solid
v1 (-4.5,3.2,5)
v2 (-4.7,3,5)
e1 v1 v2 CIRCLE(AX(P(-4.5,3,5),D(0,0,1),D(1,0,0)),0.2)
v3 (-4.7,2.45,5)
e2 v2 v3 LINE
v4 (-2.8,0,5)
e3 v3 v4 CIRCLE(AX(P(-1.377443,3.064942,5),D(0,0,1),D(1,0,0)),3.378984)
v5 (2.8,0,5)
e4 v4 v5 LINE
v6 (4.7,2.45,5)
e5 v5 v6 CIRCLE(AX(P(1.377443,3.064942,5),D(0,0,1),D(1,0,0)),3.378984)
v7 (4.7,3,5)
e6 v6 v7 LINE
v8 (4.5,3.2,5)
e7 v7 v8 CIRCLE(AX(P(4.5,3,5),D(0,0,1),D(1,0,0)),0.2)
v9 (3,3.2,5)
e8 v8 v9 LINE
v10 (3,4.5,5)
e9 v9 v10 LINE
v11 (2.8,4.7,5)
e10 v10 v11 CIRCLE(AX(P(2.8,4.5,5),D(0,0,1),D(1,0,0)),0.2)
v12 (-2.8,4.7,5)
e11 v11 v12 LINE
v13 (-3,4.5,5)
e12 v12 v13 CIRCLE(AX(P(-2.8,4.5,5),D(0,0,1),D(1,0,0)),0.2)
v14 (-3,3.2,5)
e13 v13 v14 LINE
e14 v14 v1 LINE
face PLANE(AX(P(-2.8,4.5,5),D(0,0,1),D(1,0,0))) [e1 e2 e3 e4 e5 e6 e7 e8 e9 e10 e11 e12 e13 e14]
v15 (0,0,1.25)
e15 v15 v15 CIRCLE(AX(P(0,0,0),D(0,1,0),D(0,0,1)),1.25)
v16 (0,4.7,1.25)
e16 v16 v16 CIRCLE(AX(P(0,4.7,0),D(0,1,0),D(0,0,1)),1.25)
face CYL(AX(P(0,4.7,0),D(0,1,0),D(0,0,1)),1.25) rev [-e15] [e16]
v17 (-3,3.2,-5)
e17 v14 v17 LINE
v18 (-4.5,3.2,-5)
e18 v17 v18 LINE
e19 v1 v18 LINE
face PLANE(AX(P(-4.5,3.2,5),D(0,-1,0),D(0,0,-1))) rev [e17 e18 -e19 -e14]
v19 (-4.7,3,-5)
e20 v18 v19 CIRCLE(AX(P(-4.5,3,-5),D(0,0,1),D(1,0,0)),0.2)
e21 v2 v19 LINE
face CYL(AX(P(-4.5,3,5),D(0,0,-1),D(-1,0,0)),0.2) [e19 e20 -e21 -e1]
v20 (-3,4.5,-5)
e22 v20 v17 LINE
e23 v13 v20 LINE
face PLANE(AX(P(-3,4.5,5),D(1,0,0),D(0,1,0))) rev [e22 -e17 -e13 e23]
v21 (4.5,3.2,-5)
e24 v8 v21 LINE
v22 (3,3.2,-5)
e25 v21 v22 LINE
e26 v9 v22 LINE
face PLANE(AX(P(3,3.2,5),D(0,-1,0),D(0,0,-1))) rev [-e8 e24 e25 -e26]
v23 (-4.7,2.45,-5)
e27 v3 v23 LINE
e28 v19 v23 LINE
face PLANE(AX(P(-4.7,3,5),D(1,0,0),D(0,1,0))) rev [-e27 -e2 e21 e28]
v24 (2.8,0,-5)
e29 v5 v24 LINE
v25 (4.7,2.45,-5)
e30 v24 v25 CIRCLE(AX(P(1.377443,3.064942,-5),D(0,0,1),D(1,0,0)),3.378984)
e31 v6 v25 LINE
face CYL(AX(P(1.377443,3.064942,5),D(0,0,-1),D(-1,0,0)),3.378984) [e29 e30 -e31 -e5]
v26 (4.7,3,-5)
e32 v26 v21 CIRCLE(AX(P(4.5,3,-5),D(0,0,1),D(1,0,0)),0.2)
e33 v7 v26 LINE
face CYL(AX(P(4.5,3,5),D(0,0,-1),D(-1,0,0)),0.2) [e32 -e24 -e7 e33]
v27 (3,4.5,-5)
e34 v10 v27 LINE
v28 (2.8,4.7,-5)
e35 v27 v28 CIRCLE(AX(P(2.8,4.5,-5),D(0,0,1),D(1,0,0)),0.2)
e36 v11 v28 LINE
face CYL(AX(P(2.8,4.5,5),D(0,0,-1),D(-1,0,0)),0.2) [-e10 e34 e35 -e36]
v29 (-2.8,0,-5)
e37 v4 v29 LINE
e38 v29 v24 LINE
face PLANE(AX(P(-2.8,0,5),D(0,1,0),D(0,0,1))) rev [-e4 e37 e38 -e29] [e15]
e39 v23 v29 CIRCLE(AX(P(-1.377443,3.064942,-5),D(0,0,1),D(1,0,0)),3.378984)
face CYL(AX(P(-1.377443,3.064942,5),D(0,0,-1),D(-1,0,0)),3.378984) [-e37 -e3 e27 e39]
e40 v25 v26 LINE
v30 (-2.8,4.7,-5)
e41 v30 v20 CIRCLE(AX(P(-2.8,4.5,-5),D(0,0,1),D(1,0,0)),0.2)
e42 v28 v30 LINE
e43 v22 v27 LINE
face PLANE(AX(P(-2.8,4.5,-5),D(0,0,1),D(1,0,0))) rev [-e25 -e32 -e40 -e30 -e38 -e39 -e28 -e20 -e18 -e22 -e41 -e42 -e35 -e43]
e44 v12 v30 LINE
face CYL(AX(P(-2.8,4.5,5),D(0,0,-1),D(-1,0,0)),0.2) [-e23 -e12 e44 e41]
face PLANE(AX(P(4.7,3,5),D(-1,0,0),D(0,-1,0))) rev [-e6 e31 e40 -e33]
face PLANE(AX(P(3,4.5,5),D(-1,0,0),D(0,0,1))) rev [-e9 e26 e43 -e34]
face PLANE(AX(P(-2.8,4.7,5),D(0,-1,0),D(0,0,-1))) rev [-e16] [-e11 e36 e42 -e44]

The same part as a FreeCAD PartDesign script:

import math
import FreeCAD as App
import Part
import Sketcher

doc = App.newDocument("Part")
params = doc.addObject("Spreadsheet::Sheet", "Params")
for row, (alias, value) in enumerate([
    ("sketch1_radius", "0.2 mm"),
    ("sketch1_width", "5.6 mm"),
    ("sketch1_width2", "1.5 mm"),
    ("sketch1_height", "1.3 mm"),
    ("sketch1_height2", "0.55 mm"),
    ("pad1_length", "10 mm"),
    ("sketch2_diameter", "2.5 mm"),
    ("hole_diameter", "2.5 mm"),
    ("hole_depth", "7.5 mm"),
], start=1):
    params.set(f"A{row}", alias)
    params.set(f"B{row}", "=" + value)
    params.setAlias(f"B{row}", alias)

body = doc.addObject("PartDesign::Body", "Body")

# Sketch on XY plane
sketch1 = body.newObject("Sketcher::SketchObject", "Sketch")
sketch1.AttachmentSupport = (doc.getObject("XY_Plane"), [""])
sketch1.MapMode = "FlatFace"
sketch1.addGeometry([
    Part.LineSegment(App.Vector(2.8, 4.7, 0), App.Vector(-2.8, 4.7, 0)),  # 0
    Part.ArcOfCircle(Part.Circle(App.Vector(-2.8, 4.5, 0), App.Vector(0, 0, 1), 0.2), math.radians(90), math.radians(180)),  # 1
    Part.LineSegment(App.Vector(-3, 4.5, 0), App.Vector(-3, 3.2, 0)),  # 2
    Part.LineSegment(App.Vector(-3, 3.2, 0), App.Vector(-4.5, 3.2, 0)),  # 3
    Part.ArcOfCircle(Part.Circle(App.Vector(-4.5, 3, 0), App.Vector(0, 0, 1), 0.2), math.radians(90), math.radians(180)),  # 4
    Part.LineSegment(App.Vector(-4.7, 3, 0), App.Vector(-4.7, 2.45, 0)),  # 5
    Part.ArcOfCircle(Part.Circle(App.Vector(-1.38, 3.06, 0), App.Vector(0, 0, 1), 3.38), math.radians(-170), math.radians(-115)),  # 6
    Part.LineSegment(App.Vector(-2.8, 0, 0), App.Vector(2.8, 0, 0)),  # 7
    Part.ArcOfCircle(Part.Circle(App.Vector(1.38, 3.06, 0), App.Vector(0, 0, 1), 3.38), math.radians(-65), math.radians(-10)),  # 8
    Part.LineSegment(App.Vector(4.7, 2.45, 0), App.Vector(4.7, 3, 0)),  # 9
    Part.ArcOfCircle(Part.Circle(App.Vector(4.5, 3, 0), App.Vector(0, 0, 1), 0.2), math.radians(0), math.radians(90)),  # 10
    Part.LineSegment(App.Vector(4.5, 3.2, 0), App.Vector(3, 3.2, 0)),  # 11
    Part.LineSegment(App.Vector(3, 3.2, 0), App.Vector(3, 4.5, 0)),  # 12
    Part.ArcOfCircle(Part.Circle(App.Vector(2.8, 4.5, 0), App.Vector(0, 0, 1), 0.2), math.radians(0), math.radians(90)),  # 13
], False)
sketch1.addConstraint([
    Sketcher.Constraint("Tangent", 0, 2, 1, 1),
    Sketcher.Constraint("Tangent", 1, 2, 2, 1),
    Sketcher.Constraint("Coincident", 2, 2, 3, 1),
    Sketcher.Constraint("Tangent", 3, 2, 4, 1),
    Sketcher.Constraint("Tangent", 4, 2, 5, 1),
    Sketcher.Constraint("Coincident", 5, 2, 6, 1),
    Sketcher.Constraint("Coincident", 6, 2, 7, 1),
    Sketcher.Constraint("Coincident", 7, 2, 8, 1),
    Sketcher.Constraint("Coincident", 8, 2, 9, 1),
    Sketcher.Constraint("Tangent", 9, 2, 10, 1),
    Sketcher.Constraint("Tangent", 10, 2, 11, 1),
    Sketcher.Constraint("Coincident", 11, 2, 12, 1),
    Sketcher.Constraint("Tangent", 12, 2, 13, 1),
    Sketcher.Constraint("Tangent", 13, 2, 0, 1),
    Sketcher.Constraint("Horizontal", 0),
    Sketcher.Constraint("Vertical", 2),
    Sketcher.Constraint("Horizontal", 3),
    Sketcher.Constraint("Vertical", 5),
    Sketcher.Constraint("Horizontal", 7),
    Sketcher.Constraint("Vertical", 9),
    Sketcher.Constraint("Horizontal", 11),
    Sketcher.Constraint("Vertical", 12),
    Sketcher.Constraint("Equal", 1, 4),
    Sketcher.Constraint("Equal", 6, 8),
    Sketcher.Constraint("Equal", 4, 10),
    Sketcher.Constraint("Equal", 10, 13),
    Sketcher.Constraint("Symmetric", 6, 2, 7, 2, -1, 1),
    Sketcher.Constraint("Symmetric", 4, 3, 10, 3, -2),
    Sketcher.Constraint("Horizontal", 6, 3, 8, 3),
    Sketcher.Constraint("Vertical", 0, 2, 6, 2),
    Sketcher.Constraint("Vertical", 13, 3, 7, 2),
    Sketcher.Constraint("Radius", 1, 0.2),
    Sketcher.Constraint("DistanceX", 0, 2, 0, 1, 5.6),
    Sketcher.Constraint("DistanceX", 3, 2, 3, 1, 1.5),
    Sketcher.Constraint("DistanceY", 2, 2, 2, 1, 1.3),
    Sketcher.Constraint("DistanceY", -1, 1, 4, 3, 3.0),
    Sketcher.Constraint("DistanceY", 5, 2, 5, 1, 0.55),
    Sketcher.Constraint("Radius", 6, 3.378984),
])
sketch1.setExpression("Constraints[31]", "Params.sketch1_radius")
sketch1.setExpression("Constraints[32]", "Params.sketch1_width")
sketch1.setExpression("Constraints[33]", "Params.sketch1_width2")
sketch1.setExpression("Constraints[34]", "Params.sketch1_height")
sketch1.setExpression("Constraints[36]", "Params.sketch1_height2")
pad1 = body.newObject("PartDesign::Pad", "Pad")
pad1.Profile = sketch1
pad1.setExpression("Length", "Params.pad1_length")
pad1.Midplane = True

# Sketch on XZ plane
sketch2 = body.newObject("Sketcher::SketchObject", "Sketch001")
sketch2.AttachmentSupport = (doc.getObject("XZ_Plane"), [""])
sketch2.MapMode = "FlatFace"
sketch2.AttachmentOffset = App.Placement(App.Vector(0, 0, -4.7), App.Rotation())
sketch2.addGeometry(Part.Circle(App.Vector(0, 0, 0), App.Vector(0, 0, 1), 1.2), False)
sketch2.addConstraint([
    Sketcher.Constraint("Coincident", 0, 3, -1, 1),
    Sketcher.Constraint("Diameter", 0, 2.5),
])
sketch2.setExpression("Constraints[1]", "Params.sketch2_diameter")
doc.recompute()
hole = body.newObject("PartDesign::Hole", "Hole")
hole.Profile = sketch2
hole.ThreadType = "None"
hole.setExpression("Diameter", "Params.hole_diameter")
hole.DepthType = "Dimension"
hole.setExpression("Depth", "Params.hole_depth")
hole.DrillPoint = "Angled"
hole.DrillPointAngle = 118
hole.Reversed = True

doc.recompute()
